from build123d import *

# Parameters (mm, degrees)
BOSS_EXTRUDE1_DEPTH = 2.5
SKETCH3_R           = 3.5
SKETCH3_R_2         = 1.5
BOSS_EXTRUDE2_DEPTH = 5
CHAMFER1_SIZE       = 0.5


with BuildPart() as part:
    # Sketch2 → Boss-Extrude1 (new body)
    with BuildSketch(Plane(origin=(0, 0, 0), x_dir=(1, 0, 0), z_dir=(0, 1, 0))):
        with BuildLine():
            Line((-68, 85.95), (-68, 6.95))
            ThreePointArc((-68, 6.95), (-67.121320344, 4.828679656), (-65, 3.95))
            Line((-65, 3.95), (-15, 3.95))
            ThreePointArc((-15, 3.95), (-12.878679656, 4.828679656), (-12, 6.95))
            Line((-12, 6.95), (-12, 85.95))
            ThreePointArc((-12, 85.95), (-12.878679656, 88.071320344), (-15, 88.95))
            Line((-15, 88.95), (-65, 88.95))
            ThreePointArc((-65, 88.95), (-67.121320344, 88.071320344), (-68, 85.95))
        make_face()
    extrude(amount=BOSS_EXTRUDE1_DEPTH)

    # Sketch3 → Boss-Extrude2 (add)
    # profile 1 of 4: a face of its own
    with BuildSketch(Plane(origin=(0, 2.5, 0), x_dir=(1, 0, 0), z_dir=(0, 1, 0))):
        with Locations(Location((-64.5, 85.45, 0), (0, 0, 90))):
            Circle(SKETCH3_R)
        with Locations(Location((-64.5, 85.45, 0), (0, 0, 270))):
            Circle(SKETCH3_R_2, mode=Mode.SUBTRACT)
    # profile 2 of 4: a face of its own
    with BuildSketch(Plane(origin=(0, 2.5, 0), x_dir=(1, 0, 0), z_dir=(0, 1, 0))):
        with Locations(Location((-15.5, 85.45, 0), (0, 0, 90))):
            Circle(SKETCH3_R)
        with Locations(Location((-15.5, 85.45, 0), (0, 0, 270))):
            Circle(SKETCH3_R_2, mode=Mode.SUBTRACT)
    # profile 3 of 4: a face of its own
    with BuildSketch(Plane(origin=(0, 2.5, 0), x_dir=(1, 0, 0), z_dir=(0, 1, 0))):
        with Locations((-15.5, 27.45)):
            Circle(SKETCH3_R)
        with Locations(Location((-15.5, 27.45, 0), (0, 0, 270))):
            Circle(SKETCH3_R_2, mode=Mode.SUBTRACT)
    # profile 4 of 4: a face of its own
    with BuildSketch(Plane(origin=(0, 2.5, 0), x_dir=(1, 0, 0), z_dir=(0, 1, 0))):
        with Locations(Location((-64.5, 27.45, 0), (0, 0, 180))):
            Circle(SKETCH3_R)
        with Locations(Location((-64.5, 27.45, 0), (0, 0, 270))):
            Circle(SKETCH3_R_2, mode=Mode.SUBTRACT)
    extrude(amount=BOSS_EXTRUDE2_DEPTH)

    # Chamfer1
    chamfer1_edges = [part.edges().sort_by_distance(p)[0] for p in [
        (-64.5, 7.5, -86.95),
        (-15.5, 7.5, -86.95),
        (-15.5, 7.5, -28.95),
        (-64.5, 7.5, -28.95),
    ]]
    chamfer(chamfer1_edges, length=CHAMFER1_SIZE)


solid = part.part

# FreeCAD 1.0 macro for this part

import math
import FreeCAD as App
import Part
import Sketcher
from FreeCAD import Vector


def edges_at(feature, points):
    """Names of the edges that pass closest to the given points."""
    edges = feature.Shape.Edges
    near = lambda p: min(range(len(edges)), key=lambda i: edges[i].distToShape(Part.Vertex(*p))[0])
    return sorted({f"Edge{near(p) + 1}" for p in points})

doc = App.newDocument("Part")
body = doc.addObject("PartDesign::Body", "Body")

# Sketch on XZ plane
sketch1 = doc.addObject("Sketcher::SketchObject", "Sketch")
body.addObject(sketch1)
sketch1.AttachmentSupport = (doc.XZ_Plane, [""])
sketch1.MapMode = "FlatFace"
sketch1.addGeometry([
    Part.LineSegment(Vector(-68, -86, 0), Vector(-68, -7, 0)),  # 0
    Part.ArcOfCircle(Part.Circle(Vector(-65, -6.9, 0), Vector(0, 0, 1), 3), math.radians(90), math.radians(180)),  # 1
    Part.LineSegment(Vector(-65, -4, 0), Vector(-15, -4, 0)),  # 2
    Part.ArcOfCircle(Part.Circle(Vector(-15, -6.9, 0), Vector(0, 0, 1), 3), math.radians(0), math.radians(90)),  # 3
    Part.LineSegment(Vector(-12, -7, 0), Vector(-12, -86, 0)),  # 4
    Part.ArcOfCircle(Part.Circle(Vector(-15, -86, 0), Vector(0, 0, 1), 3), math.radians(-90), math.radians(0)),  # 5
    Part.LineSegment(Vector(-15, -89, 0), Vector(-65, -89, 0)),  # 6
    Part.ArcOfCircle(Part.Circle(Vector(-65, -86, 0), Vector(0, 0, 1), 3), math.radians(180), math.radians(270)),  # 7
], False)
sketch1.addConstraint([
    Sketcher.Constraint("Tangent", 0, 2, 1, 2),
    Sketcher.Constraint("Tangent", 1, 1, 2, 1),
    Sketcher.Constraint("Tangent", 2, 2, 3, 2),
    Sketcher.Constraint("Tangent", 3, 1, 4, 1),
    Sketcher.Constraint("Tangent", 4, 2, 5, 2),
    Sketcher.Constraint("Tangent", 5, 1, 6, 1),
    Sketcher.Constraint("Tangent", 6, 2, 7, 2),
    Sketcher.Constraint("Tangent", 7, 1, 0, 1),
    Sketcher.Constraint("Vertical", 0),
    Sketcher.Constraint("Horizontal", 2),
    Sketcher.Constraint("Vertical", 4),
    Sketcher.Constraint("Horizontal", 6),
    Sketcher.Constraint("Equal", 1, 3),
    Sketcher.Constraint("Equal", 3, 5),
    Sketcher.Constraint("Equal", 5, 7),
    Sketcher.Constraint("Radius", 1, 3.0),
    Sketcher.Constraint("DistanceX", 2, 1, 2, 2, 50.0),
    Sketcher.Constraint("DistanceY", 0, 1, 0, 2, 79.0),
    Sketcher.Constraint("DistanceX", 1, 3, -1, 1, 65.0),
    Sketcher.Constraint("DistanceY", 1, 3, -1, 1, 6.95),
])
pad1 = doc.addObject("PartDesign::Pad", "Pad")
body.addObject(pad1)
pad1.Profile = sketch1
pad1.Length = 2.5
pad1.Reversed = True

# Sketch on XZ plane
sketch2 = doc.addObject("Sketcher::SketchObject", "Sketch001")
body.addObject(sketch2)
sketch2.AttachmentSupport = (doc.XZ_Plane, [""])
sketch2.MapMode = "FlatFace"
sketch2.AttachmentOffset = App.Placement(Vector(0, 0, -2.5), App.Rotation())
sketch2.addGeometry([
    Part.Circle(Vector(-64.5, -85.5, 0), Vector(0, 0, 1), 3.5),  # 0
    Part.Circle(Vector(-64.5, -85.5, 0), Vector(0, 0, 1), 1.5),  # 1
    Part.Circle(Vector(-15.5, -85.5, 0), Vector(0, 0, 1), 3.5),  # 2
    Part.Circle(Vector(-15.5, -85.5, 0), Vector(0, 0, 1), 1.5),  # 3
    Part.Circle(Vector(-15.5, -27.4, 0), Vector(0, 0, 1), 3.5),  # 4
    Part.Circle(Vector(-15.5, -27.4, 0), Vector(0, 0, 1), 1.5),  # 5
    Part.Circle(Vector(-64.5, -27.4, 0), Vector(0, 0, 1), 3.5),  # 6
    Part.Circle(Vector(-64.5, -27.4, 0), Vector(0, 0, 1), 1.5),  # 7
], False)
sketch2.addConstraint([
    Sketcher.Constraint("Coincident", 1, 3, 0, 3),
    Sketcher.Constraint("Coincident", 3, 3, 2, 3),
    Sketcher.Constraint("Coincident", 5, 3, 4, 3),
    Sketcher.Constraint("Coincident", 7, 3, 6, 3),
    Sketcher.Constraint("Equal", 0, 2),
    Sketcher.Constraint("Equal", 1, 3),
    Sketcher.Constraint("Equal", 2, 4),
    Sketcher.Constraint("Equal", 3, 5),
    Sketcher.Constraint("Equal", 4, 6),
    Sketcher.Constraint("Equal", 5, 7),
    Sketcher.Constraint("Horizontal", 1, 3, 2, 3),
    Sketcher.Constraint("Horizontal", 5, 3, 6, 3),
    Sketcher.Constraint("Vertical", 3, 3, 4, 3),
    Sketcher.Constraint("Vertical", 1, 3, 6, 3),
    Sketcher.Constraint("Diameter", 0, 7.0),
    Sketcher.Constraint("Diameter", 1, 3.0),
    Sketcher.Constraint("DistanceX", 0, 3, 2, 3, 49.0),
    Sketcher.Constraint("DistanceY", 2, 3, 4, 3, 58.0),
    Sketcher.Constraint("DistanceX", 0, 3, -1, 1, 64.5),
    Sketcher.Constraint("DistanceY", 0, 3, -1, 1, 85.45),
])
pad2 = doc.addObject("PartDesign::Pad", "Pad001")
body.addObject(pad2)
pad2.Profile = sketch2
pad2.Length = 5
pad2.Reversed = True
doc.recompute()

chamfer = doc.addObject("PartDesign::Chamfer", "Chamfer")
body.addObject(chamfer)
chamfer.Base = (pad2, edges_at(pad2, [
    (-64.5, 7.5, -86.95),
    (-15.5, 7.5, -86.95),
    (-15.5, 7.5, -28.95),
    (-64.5, 7.5, -28.95),
]))
chamfer.Size = 0.5

doc.recompute()
